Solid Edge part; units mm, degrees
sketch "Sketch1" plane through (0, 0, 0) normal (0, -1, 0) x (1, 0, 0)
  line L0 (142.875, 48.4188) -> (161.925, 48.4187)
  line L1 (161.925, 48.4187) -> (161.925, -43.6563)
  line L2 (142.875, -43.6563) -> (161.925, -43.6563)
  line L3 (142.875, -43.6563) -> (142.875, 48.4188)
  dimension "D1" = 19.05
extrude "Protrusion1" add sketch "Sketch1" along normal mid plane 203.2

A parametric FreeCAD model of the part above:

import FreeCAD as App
import Part
import Sketcher
from FreeCAD import Vector
Q = App.Units.Quantity

doc = App.newDocument("Part")
params = doc.addObject("Spreadsheet::Sheet", "Params")
for row, (alias, value) in enumerate([
    ("sketch1_width", "0.75 in"),
    ("sketch1_height", "3.625 in"),
    ("pad1_length", "8 in"),
], start=1):
    params.set(f"A{row}", alias)
    params.set(f"B{row}", "=" + value)
    params.setAlias(f"B{row}", alias)

body = doc.addObject("PartDesign::Body", "Body")

# Sketch on XZ plane
sketch1 = body.newObject("Sketcher::SketchObject", "Sketch")
sketch1.AttachmentSupport = (doc.getObject("XZ_Plane"), [""])
sketch1.MapMode = "FlatFace"
sketch1.addGeometry([
    Part.LineSegment(Vector(162, 48, 0), Vector(143, 48, 0)),
    Part.LineSegment(Vector(143, 48, 0), Vector(143, -44, 0)),
    Part.LineSegment(Vector(143, -44, 0), Vector(162, -44, 0)),
    Part.LineSegment(Vector(162, -44, 0), Vector(162, 48, 0)),
], False)
sketch1.addConstraint([
    Sketcher.Constraint("Coincident", 0, 2, 1, 1),
    Sketcher.Constraint("Coincident", 1, 2, 2, 1),
    Sketcher.Constraint("Coincident", 2, 2, 3, 1),
    Sketcher.Constraint("Coincident", 3, 2, 0, 1),
    Sketcher.Constraint("Horizontal", 0),
    Sketcher.Constraint("Vertical", 1),
    Sketcher.Constraint("Horizontal", 2),
    Sketcher.Constraint("Vertical", 3),
    Sketcher.Constraint("DistanceX", -1, 1, 0, 2, Q("5.625 in")),
    Sketcher.Constraint("DistanceX", 0, 2, 0, 1, Q("0.75 in")),
    Sketcher.Constraint("DistanceY", 1, 2, 1, 1, Q("3.625 in")),
    Sketcher.Constraint("DistanceY", -1, 1, 0, 2, Q("1.906252 in")),
])
sketch1.setExpression("Constraints[9]", "Params.sketch1_width")
sketch1.setExpression("Constraints[10]", "Params.sketch1_height")
pad1 = body.newObject("PartDesign::Pad", "Pad")
pad1.Profile = sketch1
pad1.setExpression("Length", "Params.pad1_length")
pad1.Midplane = True

doc.recompute()
